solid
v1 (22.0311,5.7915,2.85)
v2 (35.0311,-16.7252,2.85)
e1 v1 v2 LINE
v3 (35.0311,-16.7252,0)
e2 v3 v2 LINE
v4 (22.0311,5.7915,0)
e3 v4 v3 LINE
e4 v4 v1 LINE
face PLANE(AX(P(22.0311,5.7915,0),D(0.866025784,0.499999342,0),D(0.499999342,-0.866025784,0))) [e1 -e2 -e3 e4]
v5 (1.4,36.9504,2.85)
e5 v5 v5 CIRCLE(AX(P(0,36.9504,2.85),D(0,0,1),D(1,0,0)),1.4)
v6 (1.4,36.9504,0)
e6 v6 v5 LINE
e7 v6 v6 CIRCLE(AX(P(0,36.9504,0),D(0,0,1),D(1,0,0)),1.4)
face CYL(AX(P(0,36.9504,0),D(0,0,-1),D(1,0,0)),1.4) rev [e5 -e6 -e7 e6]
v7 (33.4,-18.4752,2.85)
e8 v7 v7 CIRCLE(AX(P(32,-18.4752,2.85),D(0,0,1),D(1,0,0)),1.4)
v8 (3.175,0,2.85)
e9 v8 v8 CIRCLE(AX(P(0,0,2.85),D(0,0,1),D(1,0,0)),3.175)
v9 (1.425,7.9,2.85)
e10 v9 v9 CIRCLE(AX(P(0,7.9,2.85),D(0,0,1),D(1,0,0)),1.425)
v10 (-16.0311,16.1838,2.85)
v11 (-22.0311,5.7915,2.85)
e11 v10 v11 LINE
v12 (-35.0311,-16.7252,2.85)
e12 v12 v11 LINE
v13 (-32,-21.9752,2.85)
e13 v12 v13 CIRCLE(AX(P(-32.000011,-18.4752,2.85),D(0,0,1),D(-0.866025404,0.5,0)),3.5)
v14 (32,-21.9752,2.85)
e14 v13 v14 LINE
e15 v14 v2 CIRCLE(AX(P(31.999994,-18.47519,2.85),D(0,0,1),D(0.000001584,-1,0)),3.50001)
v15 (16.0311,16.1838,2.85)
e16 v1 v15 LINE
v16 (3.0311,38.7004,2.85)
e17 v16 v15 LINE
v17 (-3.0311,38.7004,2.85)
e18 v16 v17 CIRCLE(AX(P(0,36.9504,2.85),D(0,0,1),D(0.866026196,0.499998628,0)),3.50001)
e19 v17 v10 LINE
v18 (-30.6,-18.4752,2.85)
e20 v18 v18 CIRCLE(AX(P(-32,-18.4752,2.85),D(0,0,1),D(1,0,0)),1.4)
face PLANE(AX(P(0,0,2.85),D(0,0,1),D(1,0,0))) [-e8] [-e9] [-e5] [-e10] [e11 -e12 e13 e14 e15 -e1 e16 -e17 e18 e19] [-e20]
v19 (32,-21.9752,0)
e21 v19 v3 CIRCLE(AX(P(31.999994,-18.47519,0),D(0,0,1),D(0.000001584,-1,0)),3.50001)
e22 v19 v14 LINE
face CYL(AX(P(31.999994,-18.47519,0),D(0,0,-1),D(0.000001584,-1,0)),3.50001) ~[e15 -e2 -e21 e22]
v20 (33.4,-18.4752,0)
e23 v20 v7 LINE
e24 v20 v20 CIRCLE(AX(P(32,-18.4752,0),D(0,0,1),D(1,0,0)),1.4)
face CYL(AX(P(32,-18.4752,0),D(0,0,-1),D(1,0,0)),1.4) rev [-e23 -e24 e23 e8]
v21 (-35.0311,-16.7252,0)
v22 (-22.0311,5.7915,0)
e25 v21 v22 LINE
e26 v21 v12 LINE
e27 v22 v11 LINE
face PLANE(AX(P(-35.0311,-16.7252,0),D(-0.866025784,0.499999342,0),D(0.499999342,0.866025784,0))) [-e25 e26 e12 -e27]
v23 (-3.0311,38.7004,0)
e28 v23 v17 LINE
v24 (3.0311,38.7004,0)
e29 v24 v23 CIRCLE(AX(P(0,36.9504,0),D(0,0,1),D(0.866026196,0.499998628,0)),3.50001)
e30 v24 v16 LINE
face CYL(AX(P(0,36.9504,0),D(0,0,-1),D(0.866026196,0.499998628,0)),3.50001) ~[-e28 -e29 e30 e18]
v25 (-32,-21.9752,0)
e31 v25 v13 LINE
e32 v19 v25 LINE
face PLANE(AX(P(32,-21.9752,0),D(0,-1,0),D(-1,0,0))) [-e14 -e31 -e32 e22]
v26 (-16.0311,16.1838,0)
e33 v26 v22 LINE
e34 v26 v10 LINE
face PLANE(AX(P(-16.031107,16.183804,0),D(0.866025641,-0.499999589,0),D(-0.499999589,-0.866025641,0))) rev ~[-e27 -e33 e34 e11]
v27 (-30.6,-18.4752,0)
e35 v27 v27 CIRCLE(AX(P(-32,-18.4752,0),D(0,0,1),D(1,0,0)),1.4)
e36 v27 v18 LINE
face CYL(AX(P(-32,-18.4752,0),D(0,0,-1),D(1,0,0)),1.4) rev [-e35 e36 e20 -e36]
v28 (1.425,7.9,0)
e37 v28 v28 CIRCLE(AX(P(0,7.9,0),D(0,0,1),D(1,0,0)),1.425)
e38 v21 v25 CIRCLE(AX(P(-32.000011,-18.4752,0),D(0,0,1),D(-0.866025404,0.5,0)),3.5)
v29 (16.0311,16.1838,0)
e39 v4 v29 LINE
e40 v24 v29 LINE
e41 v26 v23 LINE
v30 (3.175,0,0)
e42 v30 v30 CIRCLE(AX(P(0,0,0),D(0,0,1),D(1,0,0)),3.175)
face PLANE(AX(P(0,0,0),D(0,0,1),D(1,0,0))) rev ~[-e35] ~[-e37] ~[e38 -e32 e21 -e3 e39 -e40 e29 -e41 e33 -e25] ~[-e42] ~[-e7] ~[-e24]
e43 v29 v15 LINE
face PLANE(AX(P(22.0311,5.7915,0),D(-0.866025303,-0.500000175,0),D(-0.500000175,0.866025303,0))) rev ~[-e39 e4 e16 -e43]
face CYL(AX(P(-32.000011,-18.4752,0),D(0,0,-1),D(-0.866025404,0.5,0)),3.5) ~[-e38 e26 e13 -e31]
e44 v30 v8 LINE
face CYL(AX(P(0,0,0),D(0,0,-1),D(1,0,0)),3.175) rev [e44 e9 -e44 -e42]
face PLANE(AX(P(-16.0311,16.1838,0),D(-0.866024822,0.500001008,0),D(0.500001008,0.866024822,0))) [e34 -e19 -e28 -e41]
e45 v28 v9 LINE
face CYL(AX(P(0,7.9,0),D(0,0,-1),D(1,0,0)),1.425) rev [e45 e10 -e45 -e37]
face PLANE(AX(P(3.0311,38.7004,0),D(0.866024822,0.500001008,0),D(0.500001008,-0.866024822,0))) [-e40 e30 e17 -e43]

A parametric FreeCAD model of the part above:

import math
import FreeCAD as App
import Part
import Sketcher

V = App.Vector
Q = App.Units.Quantity

doc = App.newDocument("Part")
body = doc.addObject("PartDesign::Body", "Body")

sketch1 = body.newObject("Sketcher::SketchObject", "Sketch")
sketch1.AttachmentSupport = (doc.getObject("XY_Plane"), [""])
sketch1.MapMode = "FlatFace"
sketch1.addGeometry(Part.LineSegment(V(22.0311, 5.7915, 0), V(16.0311, 16.1838, 0)), False)
sketch1.addGeometry(Part.LineSegment(V(16.0311, 16.1838, 0), V(3.0311, 38.7004, 0)), False)
sketch1.addGeometry(Part.ArcOfCircle(Part.Circle(V(0, 36.9504, 0), V(0, 0, 1), 3.50001), math.radians(29.999909), math.radians(150.000091)), False)
sketch1.addGeometry(Part.LineSegment(V(-3.0311, 38.7004, 0), V(-16.0311, 16.1838, 0)), False)
sketch1.addGeometry(Part.LineSegment(V(-16.031107, 16.183804, 0), V(-22.0311, 5.7915, 0)), False)
sketch1.addGeometry(Part.LineSegment(V(-22.0311, 5.7915, 0), V(-35.0311, -16.7252, 0)), False)
sketch1.addGeometry(Part.ArcOfCircle(Part.Circle(V(-32, -18.4752, 0), V(0, 0, 1), 3.50001), math.radians(150.000091), math.radians(270)), False)
sketch1.addGeometry(Part.LineSegment(V(-32, -21.9752, 0), V(32, -21.9752, 0)), False)
sketch1.addGeometry(Part.ArcOfCircle(Part.Circle(V(32, -18.4752, 0), V(0, 0, 1), 3.5), math.radians(-90), math.radians(29.999909)), False)
sketch1.addGeometry(Part.LineSegment(V(35.0311, -16.7252, 0), V(22.0311, 5.7915, 0)), False)
sketch1.addGeometry(Part.Circle(V(-32, -18.4752, 0), V(0, 0, 1), 1.4), False)
sketch1.addGeometry(Part.Circle(V(32, -18.4752, 0), V(0, 0, 1), 1.4), False)
sketch1.addGeometry(Part.Circle(V(0, 36.9504, 0), V(0, 0, 1), 1.4), False)
sketch1.addGeometry(Part.Circle(V(0, 0, 0), V(0, 0, 1), 3.175), False)
sketch1.addGeometry(Part.Circle(V(0, 7.9, 0), V(0, 0, 1), 1.425), False)
sketch1.addConstraint(Sketcher.Constraint("Coincident", 0, 2, 1, 1))
sketch1.addConstraint(Sketcher.Constraint("Tangent", 1, 2, 2, 1))
sketch1.addConstraint(Sketcher.Constraint("Tangent", 2, 2, 3, 1))
sketch1.addConstraint(Sketcher.Constraint("Coincident", 3, 2, 4, 1))
sketch1.addConstraint(Sketcher.Constraint("Coincident", 4, 2, 5, 1))
sketch1.addConstraint(Sketcher.Constraint("Tangent", 5, 2, 6, 1))
sketch1.addConstraint(Sketcher.Constraint("Tangent", 6, 2, 7, 1))
sketch1.addConstraint(Sketcher.Constraint("Tangent", 7, 2, 8, 1))
sketch1.addConstraint(Sketcher.Constraint("Tangent", 8, 2, 9, 1))
sketch1.addConstraint(Sketcher.Constraint("Coincident", 9, 2, 0, 1))
sketch1.addConstraint(Sketcher.Constraint("Horizontal", 7))
sketch1.addConstraint(Sketcher.Constraint("Coincident", 13, 3, -1, 1))
sketch1.addConstraint(Sketcher.Constraint("Coincident", 10, 3, 6, 3))
sketch1.addConstraint(Sketcher.Constraint("Coincident", 11, 3, 8, 3))
sketch1.addConstraint(Sketcher.Constraint("Coincident", 12, 3, 2, 3))
sketch1.addConstraint(Sketcher.Constraint("Equal", 2, 6))
sketch1.addConstraint(Sketcher.Constraint("Equal", 6, 8))
sketch1.addConstraint(Sketcher.Constraint("Equal", 10, 11))
sketch1.addConstraint(Sketcher.Constraint("Equal", 11, 12))
sketch1.addConstraint(Sketcher.Constraint("Symmetric", 1, 2, 2, 2, -2))
sketch1.addConstraint(Sketcher.Constraint("Symmetric", 5, 2, 8, 2, -2))
sketch1.addConstraint(Sketcher.Constraint("PointOnObject", 14, 3, -2))
sketch1.addConstraint(Sketcher.Constraint("Parallel", 0, 1))
sketch1.addConstraint(Sketcher.Constraint("Parallel", 4, 5))
sketch1.addConstraint(Sketcher.Constraint("Horizontal", 0, 2, 3, 2))
sketch1.addConstraint(Sketcher.Constraint("Horizontal", 4, 2, 9, 2))
sketch1.addConstraint(Sketcher.Constraint("Equal", 3, 5))
sketch1.addConstraint(Sketcher.Constraint("Diameter", 13, 6.35))
sketch1.addConstraint(Sketcher.Constraint("Diameter", 14, 2.85))
sketch1.addConstraint(Sketcher.Constraint("Diameter", 10, 2.8))
sketch1.addConstraint(Sketcher.Constraint("DistanceY", -1, 1, 14, 3, 7.9))
sketch1.addConstraint(Sketcher.Constraint("Radius", 2, 3.5))
sketch1.addConstraint(Sketcher.Constraint("DistanceX", 7, 1, 7, 2, 64.0))
sketch1.addConstraint(Sketcher.Constraint("Angle", 0, Q("120 deg")))
sketch1.addConstraint(Sketcher.Constraint("Distance", 0, 12.0))
sketch1.addConstraint(Sketcher.Constraint("DistanceY", -1, 1, 2, 3, 36.9504))
pad1 = body.newObject("PartDesign::Pad", "Pad")
pad1.Profile = sketch1
pad1.Length = 2.85

doc.recompute()
